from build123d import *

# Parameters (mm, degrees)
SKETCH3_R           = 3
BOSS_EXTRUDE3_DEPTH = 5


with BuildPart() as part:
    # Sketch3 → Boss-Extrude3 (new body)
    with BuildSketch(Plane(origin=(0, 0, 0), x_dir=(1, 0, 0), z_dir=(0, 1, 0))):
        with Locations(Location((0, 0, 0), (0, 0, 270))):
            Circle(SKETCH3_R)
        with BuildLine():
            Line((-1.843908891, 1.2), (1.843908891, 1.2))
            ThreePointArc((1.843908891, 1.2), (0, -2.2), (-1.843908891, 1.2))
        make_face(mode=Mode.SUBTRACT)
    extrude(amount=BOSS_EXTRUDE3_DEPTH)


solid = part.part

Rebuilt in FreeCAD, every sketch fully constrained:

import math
import FreeCAD as App
import Part
import Sketcher

V = App.Vector

doc = App.newDocument("Part")
body = doc.addObject("PartDesign::Body", "Body")

sketch1 = body.newObject("Sketcher::SketchObject", "Sketch")
sketch1.AttachmentSupport = (doc.getObject("XZ_Plane"), [""])
sketch1.MapMode = "FlatFace"
sketch1.addGeometry([
    Part.Circle(V(0, 0, 0), V(0, 0, 1), 3),
    Part.ArcOfCircle(Part.Circle(V(0, 0, 0), V(0, 0, 1), 2.2), math.radians(-33), math.radians(213)),
    Part.LineSegment(V(-1.8, -1.2, 0), V(1.8, -1.2, 0)),
], False)
sketch1.addConstraint([
    Sketcher.Constraint("Coincident", 1, 1, 2, 2),
    Sketcher.Constraint("Coincident", 2, 1, 1, 2),
    Sketcher.Constraint("Horizontal", 2),
    Sketcher.Constraint("Coincident", 0, 3, -1, 1),
    Sketcher.Constraint("Coincident", 1, 3, -1, 1),
    Sketcher.Constraint("Diameter", 0, 6.0),
    Sketcher.Constraint("Radius", 1, 2.2),
    Sketcher.Constraint("DistanceY", 1, 1, -1, 1, 1.2),
])
pad1 = body.newObject("PartDesign::Pad", "Pad")
pad1.Profile = sketch1
pad1.Length = 5
pad1.Reversed = True

doc.recompute()
